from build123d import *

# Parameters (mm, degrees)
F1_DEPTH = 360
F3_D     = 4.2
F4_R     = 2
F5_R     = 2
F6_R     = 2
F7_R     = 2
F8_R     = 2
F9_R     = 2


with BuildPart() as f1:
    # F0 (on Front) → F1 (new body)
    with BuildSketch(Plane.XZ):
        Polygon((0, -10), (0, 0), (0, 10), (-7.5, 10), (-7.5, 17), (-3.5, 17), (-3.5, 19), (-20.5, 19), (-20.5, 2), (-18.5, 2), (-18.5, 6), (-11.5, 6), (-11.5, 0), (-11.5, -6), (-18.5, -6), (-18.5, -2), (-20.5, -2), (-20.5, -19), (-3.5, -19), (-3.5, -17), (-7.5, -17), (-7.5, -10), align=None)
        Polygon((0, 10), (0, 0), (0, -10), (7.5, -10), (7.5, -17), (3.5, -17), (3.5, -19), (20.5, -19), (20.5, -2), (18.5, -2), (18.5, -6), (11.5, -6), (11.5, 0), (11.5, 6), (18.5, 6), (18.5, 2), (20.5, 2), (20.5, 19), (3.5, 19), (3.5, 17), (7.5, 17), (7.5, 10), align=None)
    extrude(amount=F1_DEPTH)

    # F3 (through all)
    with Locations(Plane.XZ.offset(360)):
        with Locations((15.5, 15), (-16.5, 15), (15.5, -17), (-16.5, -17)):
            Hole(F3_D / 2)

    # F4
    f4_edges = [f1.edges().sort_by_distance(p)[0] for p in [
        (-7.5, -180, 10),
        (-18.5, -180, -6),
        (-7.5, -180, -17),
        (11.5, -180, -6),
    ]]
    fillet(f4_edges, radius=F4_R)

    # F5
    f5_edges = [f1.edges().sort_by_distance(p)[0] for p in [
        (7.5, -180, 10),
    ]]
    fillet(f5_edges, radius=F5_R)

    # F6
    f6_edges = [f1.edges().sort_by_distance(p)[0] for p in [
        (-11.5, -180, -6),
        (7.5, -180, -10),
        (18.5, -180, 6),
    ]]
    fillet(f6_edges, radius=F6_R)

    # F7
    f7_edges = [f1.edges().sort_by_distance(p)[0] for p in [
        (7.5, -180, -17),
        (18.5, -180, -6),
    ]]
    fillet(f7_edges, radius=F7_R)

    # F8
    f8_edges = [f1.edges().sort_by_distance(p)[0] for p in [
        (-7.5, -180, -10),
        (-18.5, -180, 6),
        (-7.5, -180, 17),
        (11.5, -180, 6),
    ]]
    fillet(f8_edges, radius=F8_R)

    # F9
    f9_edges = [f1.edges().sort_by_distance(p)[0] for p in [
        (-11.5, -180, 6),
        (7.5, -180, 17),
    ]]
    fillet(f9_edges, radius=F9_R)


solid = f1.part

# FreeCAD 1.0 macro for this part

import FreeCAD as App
import Part
import Sketcher
from FreeCAD import Vector


def edges_at(feature, points):
    """Names of the edges that pass closest to the given points."""
    edges = feature.Shape.Edges
    near = lambda p: min(range(len(edges)), key=lambda i: edges[i].distToShape(Part.Vertex(*p))[0])
    return sorted({f"Edge{near(p) + 1}" for p in points})


def add_polygon(sketch, points):
    """Adds a closed chain of lines whose ends are joined by coincident constraints."""
    first, n = sketch.GeometryCount, len(points)
    for a, b in zip(points, points[1:] + points[:1]):
        sketch.addGeometry(Part.LineSegment(App.Vector(*a, 0), App.Vector(*b, 0)), False)
    for i in range(n):
        sketch.addConstraint(Sketcher.Constraint("Coincident", first + i, 2, first + (i + 1) % n, 1))

doc = App.newDocument("Part")
body = doc.addObject("PartDesign::Body", "Body")

# Sketch on XZ plane
sketch1 = body.newObject("Sketcher::SketchObject", "Sketch")
sketch1.AttachmentSupport = (doc.getObject("XZ_Plane"), [""])
sketch1.MapMode = "FlatFace"
add_polygon(sketch1, [(-7.5, 10), (-7.5, 17), (-3.5, 17), (-3.5, 19), (-20.5, 19), (-20.5, 2), (-18.5, 2), (-18.5, 6), (-11.5, 6), (-11.5, -6), (-18.5, -6), (-18.5, -2), (-20.5, -2), (-20.5, -19), (-3.5, -19), (-3.5, -17), (-7.5, -17), (-7.5, -10), (7.5, -10), (7.5, -17), (3.5, -17), (3.5, -19), (20.5, -19), (20.5, -2), (18.5, -2), (18.5, -6), (11.5, -6), (11.5, 6), (18.5, 6), (18.5, 2), (20.5, 2), (20.5, 19), (3.5, 19), (3.5, 17), (7.5, 17), (7.5, 10)])  # lines 0-35
sketch1.addConstraint([
    Sketcher.Constraint("Vertical", 0),
    Sketcher.Constraint("Horizontal", 1),
    Sketcher.Constraint("Vertical", 2),
    Sketcher.Constraint("Horizontal", 3),
    Sketcher.Constraint("Vertical", 4),
    Sketcher.Constraint("Horizontal", 5),
    Sketcher.Constraint("Vertical", 6),
    Sketcher.Constraint("Horizontal", 7),
    Sketcher.Constraint("Vertical", 8),
    Sketcher.Constraint("Horizontal", 9),
    Sketcher.Constraint("Vertical", 10),
    Sketcher.Constraint("Horizontal", 11),
    Sketcher.Constraint("Vertical", 12),
    Sketcher.Constraint("Horizontal", 13),
    Sketcher.Constraint("Vertical", 14),
    Sketcher.Constraint("Horizontal", 15),
    Sketcher.Constraint("Vertical", 16),
    Sketcher.Constraint("Horizontal", 17),
    Sketcher.Constraint("Vertical", 18),
    Sketcher.Constraint("Horizontal", 19),
    Sketcher.Constraint("Vertical", 20),
    Sketcher.Constraint("Horizontal", 21),
    Sketcher.Constraint("Vertical", 22),
    Sketcher.Constraint("Horizontal", 23),
    Sketcher.Constraint("Vertical", 24),
    Sketcher.Constraint("Horizontal", 25),
    Sketcher.Constraint("Vertical", 26),
    Sketcher.Constraint("Horizontal", 27),
    Sketcher.Constraint("Vertical", 28),
    Sketcher.Constraint("Horizontal", 29),
    Sketcher.Constraint("Vertical", 30),
    Sketcher.Constraint("Horizontal", 31),
    Sketcher.Constraint("Vertical", 32),
    Sketcher.Constraint("Horizontal", 33),
    Sketcher.Constraint("Vertical", 34),
    Sketcher.Constraint("Horizontal", 35),
    Sketcher.Constraint("Symmetric", 0, 2, 18, 2, -1, 1),
    Sketcher.Constraint("Symmetric", 2, 2, 20, 2, -1, 1),
    Sketcher.Constraint("Symmetric", 4, 2, 22, 2, -1, 1),
    Sketcher.Constraint("Symmetric", 6, 2, 24, 2, -1, 1),
    Sketcher.Constraint("Symmetric", 8, 2, 26, 2, -1, 1),
    Sketcher.Constraint("Symmetric", 10, 2, 28, 2, -1, 1),
    Sketcher.Constraint("Symmetric", 12, 2, 30, 2, -1, 1),
    Sketcher.Constraint("Symmetric", 14, 2, 32, 2, -1, 1),
    Sketcher.Constraint("Symmetric", 16, 2, 34, 2, -1, 1),
    Sketcher.Constraint("Symmetric", 15, 2, 18, 2, -2),
    Sketcher.Constraint("Symmetric", 13, 2, 20, 2, -2),
    Sketcher.Constraint("Symmetric", 11, 2, 22, 2, -2),
    Sketcher.Constraint("Symmetric", 9, 2, 24, 2, -2),
    Sketcher.Constraint("Equal", 27, 0),
    Sketcher.Constraint("Equal", 29, 2),
    Sketcher.Constraint("Equal", 31, 4),
    Sketcher.Constraint("Equal", 33, 6),
    Sketcher.Constraint("DistanceX", 1, 1, 1, 2, 4.0),
    Sketcher.Constraint("DistanceX", 3, 2, 3, 1, 17.0),
    Sketcher.Constraint("DistanceX", 5, 1, 5, 2, 2.0),
    Sketcher.Constraint("DistanceX", 7, 1, 7, 2, 7.0),
    Sketcher.Constraint("DistanceX", 17, 1, 17, 2, 15.0),
    Sketcher.Constraint("DistanceY", 8, 2, 8, 1, 12.0),
])
pad1 = body.newObject("PartDesign::Pad", "Pad")
pad1.Profile = sketch1
pad1.Length = 360

# Sketch on XZ plane
sketch2 = body.newObject("Sketcher::SketchObject", "Sketch001")
sketch2.AttachmentSupport = (doc.getObject("XZ_Plane"), [""])
sketch2.MapMode = "FlatFace"
sketch2.AttachmentOffset = App.Placement(Vector(0, 0, 360), App.Rotation())
sketch2.addGeometry([
    Part.Circle(Vector(15.5, 15, 0), Vector(0, 0, 1), 2.1),
    Part.Circle(Vector(-16.5, 15, 0), Vector(0, 0, 1), 2.1),
    Part.Circle(Vector(15.5, -17, 0), Vector(0, 0, 1), 2.1),
    Part.Circle(Vector(-16.5, -17, 0), Vector(0, 0, 1), 2.1),
], False)
sketch2.addConstraint([
    Sketcher.Constraint("Equal", 0, 1),
    Sketcher.Constraint("Equal", 1, 2),
    Sketcher.Constraint("Equal", 2, 3),
    Sketcher.Constraint("Horizontal", 0, 3, 1, 3),
    Sketcher.Constraint("Horizontal", 2, 3, 3, 3),
    Sketcher.Constraint("Vertical", 0, 3, 2, 3),
    Sketcher.Constraint("Vertical", 1, 3, 3, 3),
    Sketcher.Constraint("Diameter", 0, 4.2),
    Sketcher.Constraint("DistanceY", -1, 1, 0, 3, 15.0),
    Sketcher.Constraint("DistanceY", 2, 3, -1, 1, 17.0),
    Sketcher.Constraint("DistanceX", 1, 3, 0, 3, 32.0),
    Sketcher.Constraint("DistanceX", -1, 1, 0, 3, 15.5),
])
doc.recompute()
hole = body.newObject("PartDesign::Hole", "Hole")
hole.Profile = sketch2
hole.ThreadType = "None"
hole.Diameter = 4.2
hole.DepthType = "ThroughAll"
doc.recompute()

fillet = body.newObject("PartDesign::Fillet", "Fillet")
fillet.Base = (hole, edges_at(hole, [
    (-7.5, -180, 10),
    (-18.5, -180, -6),
    (-7.5, -180, -17),
    (11.5, -180, -6),
]))
fillet.Radius = 2
doc.recompute()

fillet2 = body.newObject("PartDesign::Fillet", "Fillet001")
fillet2.Base = (fillet, edges_at(fillet, [(7.5, -180, 10)]))
fillet2.Radius = 2
doc.recompute()

fillet3 = body.newObject("PartDesign::Fillet", "Fillet002")
fillet3.Base = (fillet2, edges_at(fillet2, [(-11.5, -180, -6), (7.5, -180, -10), (18.5, -180, 6)]))
fillet3.Radius = 2
doc.recompute()

fillet4 = body.newObject("PartDesign::Fillet", "Fillet003")
fillet4.Base = (fillet3, edges_at(fillet3, [(7.5, -180, -17), (18.5, -180, -6)]))
fillet4.Radius = 2
doc.recompute()

fillet5 = body.newObject("PartDesign::Fillet", "Fillet004")
fillet5.Base = (fillet4, edges_at(fillet4, [
    (-7.5, -180, -10),
    (-18.5, -180, 6),
    (-7.5, -180, 17),
    (11.5, -180, 6),
]))
fillet5.Radius = 2
doc.recompute()

fillet6 = body.newObject("PartDesign::Fillet", "Fillet005")
fillet6.Base = (fillet5, edges_at(fillet5, [(-11.5, -180, 6), (7.5, -180, 17)]))
fillet6.Radius = 2

doc.recompute()
